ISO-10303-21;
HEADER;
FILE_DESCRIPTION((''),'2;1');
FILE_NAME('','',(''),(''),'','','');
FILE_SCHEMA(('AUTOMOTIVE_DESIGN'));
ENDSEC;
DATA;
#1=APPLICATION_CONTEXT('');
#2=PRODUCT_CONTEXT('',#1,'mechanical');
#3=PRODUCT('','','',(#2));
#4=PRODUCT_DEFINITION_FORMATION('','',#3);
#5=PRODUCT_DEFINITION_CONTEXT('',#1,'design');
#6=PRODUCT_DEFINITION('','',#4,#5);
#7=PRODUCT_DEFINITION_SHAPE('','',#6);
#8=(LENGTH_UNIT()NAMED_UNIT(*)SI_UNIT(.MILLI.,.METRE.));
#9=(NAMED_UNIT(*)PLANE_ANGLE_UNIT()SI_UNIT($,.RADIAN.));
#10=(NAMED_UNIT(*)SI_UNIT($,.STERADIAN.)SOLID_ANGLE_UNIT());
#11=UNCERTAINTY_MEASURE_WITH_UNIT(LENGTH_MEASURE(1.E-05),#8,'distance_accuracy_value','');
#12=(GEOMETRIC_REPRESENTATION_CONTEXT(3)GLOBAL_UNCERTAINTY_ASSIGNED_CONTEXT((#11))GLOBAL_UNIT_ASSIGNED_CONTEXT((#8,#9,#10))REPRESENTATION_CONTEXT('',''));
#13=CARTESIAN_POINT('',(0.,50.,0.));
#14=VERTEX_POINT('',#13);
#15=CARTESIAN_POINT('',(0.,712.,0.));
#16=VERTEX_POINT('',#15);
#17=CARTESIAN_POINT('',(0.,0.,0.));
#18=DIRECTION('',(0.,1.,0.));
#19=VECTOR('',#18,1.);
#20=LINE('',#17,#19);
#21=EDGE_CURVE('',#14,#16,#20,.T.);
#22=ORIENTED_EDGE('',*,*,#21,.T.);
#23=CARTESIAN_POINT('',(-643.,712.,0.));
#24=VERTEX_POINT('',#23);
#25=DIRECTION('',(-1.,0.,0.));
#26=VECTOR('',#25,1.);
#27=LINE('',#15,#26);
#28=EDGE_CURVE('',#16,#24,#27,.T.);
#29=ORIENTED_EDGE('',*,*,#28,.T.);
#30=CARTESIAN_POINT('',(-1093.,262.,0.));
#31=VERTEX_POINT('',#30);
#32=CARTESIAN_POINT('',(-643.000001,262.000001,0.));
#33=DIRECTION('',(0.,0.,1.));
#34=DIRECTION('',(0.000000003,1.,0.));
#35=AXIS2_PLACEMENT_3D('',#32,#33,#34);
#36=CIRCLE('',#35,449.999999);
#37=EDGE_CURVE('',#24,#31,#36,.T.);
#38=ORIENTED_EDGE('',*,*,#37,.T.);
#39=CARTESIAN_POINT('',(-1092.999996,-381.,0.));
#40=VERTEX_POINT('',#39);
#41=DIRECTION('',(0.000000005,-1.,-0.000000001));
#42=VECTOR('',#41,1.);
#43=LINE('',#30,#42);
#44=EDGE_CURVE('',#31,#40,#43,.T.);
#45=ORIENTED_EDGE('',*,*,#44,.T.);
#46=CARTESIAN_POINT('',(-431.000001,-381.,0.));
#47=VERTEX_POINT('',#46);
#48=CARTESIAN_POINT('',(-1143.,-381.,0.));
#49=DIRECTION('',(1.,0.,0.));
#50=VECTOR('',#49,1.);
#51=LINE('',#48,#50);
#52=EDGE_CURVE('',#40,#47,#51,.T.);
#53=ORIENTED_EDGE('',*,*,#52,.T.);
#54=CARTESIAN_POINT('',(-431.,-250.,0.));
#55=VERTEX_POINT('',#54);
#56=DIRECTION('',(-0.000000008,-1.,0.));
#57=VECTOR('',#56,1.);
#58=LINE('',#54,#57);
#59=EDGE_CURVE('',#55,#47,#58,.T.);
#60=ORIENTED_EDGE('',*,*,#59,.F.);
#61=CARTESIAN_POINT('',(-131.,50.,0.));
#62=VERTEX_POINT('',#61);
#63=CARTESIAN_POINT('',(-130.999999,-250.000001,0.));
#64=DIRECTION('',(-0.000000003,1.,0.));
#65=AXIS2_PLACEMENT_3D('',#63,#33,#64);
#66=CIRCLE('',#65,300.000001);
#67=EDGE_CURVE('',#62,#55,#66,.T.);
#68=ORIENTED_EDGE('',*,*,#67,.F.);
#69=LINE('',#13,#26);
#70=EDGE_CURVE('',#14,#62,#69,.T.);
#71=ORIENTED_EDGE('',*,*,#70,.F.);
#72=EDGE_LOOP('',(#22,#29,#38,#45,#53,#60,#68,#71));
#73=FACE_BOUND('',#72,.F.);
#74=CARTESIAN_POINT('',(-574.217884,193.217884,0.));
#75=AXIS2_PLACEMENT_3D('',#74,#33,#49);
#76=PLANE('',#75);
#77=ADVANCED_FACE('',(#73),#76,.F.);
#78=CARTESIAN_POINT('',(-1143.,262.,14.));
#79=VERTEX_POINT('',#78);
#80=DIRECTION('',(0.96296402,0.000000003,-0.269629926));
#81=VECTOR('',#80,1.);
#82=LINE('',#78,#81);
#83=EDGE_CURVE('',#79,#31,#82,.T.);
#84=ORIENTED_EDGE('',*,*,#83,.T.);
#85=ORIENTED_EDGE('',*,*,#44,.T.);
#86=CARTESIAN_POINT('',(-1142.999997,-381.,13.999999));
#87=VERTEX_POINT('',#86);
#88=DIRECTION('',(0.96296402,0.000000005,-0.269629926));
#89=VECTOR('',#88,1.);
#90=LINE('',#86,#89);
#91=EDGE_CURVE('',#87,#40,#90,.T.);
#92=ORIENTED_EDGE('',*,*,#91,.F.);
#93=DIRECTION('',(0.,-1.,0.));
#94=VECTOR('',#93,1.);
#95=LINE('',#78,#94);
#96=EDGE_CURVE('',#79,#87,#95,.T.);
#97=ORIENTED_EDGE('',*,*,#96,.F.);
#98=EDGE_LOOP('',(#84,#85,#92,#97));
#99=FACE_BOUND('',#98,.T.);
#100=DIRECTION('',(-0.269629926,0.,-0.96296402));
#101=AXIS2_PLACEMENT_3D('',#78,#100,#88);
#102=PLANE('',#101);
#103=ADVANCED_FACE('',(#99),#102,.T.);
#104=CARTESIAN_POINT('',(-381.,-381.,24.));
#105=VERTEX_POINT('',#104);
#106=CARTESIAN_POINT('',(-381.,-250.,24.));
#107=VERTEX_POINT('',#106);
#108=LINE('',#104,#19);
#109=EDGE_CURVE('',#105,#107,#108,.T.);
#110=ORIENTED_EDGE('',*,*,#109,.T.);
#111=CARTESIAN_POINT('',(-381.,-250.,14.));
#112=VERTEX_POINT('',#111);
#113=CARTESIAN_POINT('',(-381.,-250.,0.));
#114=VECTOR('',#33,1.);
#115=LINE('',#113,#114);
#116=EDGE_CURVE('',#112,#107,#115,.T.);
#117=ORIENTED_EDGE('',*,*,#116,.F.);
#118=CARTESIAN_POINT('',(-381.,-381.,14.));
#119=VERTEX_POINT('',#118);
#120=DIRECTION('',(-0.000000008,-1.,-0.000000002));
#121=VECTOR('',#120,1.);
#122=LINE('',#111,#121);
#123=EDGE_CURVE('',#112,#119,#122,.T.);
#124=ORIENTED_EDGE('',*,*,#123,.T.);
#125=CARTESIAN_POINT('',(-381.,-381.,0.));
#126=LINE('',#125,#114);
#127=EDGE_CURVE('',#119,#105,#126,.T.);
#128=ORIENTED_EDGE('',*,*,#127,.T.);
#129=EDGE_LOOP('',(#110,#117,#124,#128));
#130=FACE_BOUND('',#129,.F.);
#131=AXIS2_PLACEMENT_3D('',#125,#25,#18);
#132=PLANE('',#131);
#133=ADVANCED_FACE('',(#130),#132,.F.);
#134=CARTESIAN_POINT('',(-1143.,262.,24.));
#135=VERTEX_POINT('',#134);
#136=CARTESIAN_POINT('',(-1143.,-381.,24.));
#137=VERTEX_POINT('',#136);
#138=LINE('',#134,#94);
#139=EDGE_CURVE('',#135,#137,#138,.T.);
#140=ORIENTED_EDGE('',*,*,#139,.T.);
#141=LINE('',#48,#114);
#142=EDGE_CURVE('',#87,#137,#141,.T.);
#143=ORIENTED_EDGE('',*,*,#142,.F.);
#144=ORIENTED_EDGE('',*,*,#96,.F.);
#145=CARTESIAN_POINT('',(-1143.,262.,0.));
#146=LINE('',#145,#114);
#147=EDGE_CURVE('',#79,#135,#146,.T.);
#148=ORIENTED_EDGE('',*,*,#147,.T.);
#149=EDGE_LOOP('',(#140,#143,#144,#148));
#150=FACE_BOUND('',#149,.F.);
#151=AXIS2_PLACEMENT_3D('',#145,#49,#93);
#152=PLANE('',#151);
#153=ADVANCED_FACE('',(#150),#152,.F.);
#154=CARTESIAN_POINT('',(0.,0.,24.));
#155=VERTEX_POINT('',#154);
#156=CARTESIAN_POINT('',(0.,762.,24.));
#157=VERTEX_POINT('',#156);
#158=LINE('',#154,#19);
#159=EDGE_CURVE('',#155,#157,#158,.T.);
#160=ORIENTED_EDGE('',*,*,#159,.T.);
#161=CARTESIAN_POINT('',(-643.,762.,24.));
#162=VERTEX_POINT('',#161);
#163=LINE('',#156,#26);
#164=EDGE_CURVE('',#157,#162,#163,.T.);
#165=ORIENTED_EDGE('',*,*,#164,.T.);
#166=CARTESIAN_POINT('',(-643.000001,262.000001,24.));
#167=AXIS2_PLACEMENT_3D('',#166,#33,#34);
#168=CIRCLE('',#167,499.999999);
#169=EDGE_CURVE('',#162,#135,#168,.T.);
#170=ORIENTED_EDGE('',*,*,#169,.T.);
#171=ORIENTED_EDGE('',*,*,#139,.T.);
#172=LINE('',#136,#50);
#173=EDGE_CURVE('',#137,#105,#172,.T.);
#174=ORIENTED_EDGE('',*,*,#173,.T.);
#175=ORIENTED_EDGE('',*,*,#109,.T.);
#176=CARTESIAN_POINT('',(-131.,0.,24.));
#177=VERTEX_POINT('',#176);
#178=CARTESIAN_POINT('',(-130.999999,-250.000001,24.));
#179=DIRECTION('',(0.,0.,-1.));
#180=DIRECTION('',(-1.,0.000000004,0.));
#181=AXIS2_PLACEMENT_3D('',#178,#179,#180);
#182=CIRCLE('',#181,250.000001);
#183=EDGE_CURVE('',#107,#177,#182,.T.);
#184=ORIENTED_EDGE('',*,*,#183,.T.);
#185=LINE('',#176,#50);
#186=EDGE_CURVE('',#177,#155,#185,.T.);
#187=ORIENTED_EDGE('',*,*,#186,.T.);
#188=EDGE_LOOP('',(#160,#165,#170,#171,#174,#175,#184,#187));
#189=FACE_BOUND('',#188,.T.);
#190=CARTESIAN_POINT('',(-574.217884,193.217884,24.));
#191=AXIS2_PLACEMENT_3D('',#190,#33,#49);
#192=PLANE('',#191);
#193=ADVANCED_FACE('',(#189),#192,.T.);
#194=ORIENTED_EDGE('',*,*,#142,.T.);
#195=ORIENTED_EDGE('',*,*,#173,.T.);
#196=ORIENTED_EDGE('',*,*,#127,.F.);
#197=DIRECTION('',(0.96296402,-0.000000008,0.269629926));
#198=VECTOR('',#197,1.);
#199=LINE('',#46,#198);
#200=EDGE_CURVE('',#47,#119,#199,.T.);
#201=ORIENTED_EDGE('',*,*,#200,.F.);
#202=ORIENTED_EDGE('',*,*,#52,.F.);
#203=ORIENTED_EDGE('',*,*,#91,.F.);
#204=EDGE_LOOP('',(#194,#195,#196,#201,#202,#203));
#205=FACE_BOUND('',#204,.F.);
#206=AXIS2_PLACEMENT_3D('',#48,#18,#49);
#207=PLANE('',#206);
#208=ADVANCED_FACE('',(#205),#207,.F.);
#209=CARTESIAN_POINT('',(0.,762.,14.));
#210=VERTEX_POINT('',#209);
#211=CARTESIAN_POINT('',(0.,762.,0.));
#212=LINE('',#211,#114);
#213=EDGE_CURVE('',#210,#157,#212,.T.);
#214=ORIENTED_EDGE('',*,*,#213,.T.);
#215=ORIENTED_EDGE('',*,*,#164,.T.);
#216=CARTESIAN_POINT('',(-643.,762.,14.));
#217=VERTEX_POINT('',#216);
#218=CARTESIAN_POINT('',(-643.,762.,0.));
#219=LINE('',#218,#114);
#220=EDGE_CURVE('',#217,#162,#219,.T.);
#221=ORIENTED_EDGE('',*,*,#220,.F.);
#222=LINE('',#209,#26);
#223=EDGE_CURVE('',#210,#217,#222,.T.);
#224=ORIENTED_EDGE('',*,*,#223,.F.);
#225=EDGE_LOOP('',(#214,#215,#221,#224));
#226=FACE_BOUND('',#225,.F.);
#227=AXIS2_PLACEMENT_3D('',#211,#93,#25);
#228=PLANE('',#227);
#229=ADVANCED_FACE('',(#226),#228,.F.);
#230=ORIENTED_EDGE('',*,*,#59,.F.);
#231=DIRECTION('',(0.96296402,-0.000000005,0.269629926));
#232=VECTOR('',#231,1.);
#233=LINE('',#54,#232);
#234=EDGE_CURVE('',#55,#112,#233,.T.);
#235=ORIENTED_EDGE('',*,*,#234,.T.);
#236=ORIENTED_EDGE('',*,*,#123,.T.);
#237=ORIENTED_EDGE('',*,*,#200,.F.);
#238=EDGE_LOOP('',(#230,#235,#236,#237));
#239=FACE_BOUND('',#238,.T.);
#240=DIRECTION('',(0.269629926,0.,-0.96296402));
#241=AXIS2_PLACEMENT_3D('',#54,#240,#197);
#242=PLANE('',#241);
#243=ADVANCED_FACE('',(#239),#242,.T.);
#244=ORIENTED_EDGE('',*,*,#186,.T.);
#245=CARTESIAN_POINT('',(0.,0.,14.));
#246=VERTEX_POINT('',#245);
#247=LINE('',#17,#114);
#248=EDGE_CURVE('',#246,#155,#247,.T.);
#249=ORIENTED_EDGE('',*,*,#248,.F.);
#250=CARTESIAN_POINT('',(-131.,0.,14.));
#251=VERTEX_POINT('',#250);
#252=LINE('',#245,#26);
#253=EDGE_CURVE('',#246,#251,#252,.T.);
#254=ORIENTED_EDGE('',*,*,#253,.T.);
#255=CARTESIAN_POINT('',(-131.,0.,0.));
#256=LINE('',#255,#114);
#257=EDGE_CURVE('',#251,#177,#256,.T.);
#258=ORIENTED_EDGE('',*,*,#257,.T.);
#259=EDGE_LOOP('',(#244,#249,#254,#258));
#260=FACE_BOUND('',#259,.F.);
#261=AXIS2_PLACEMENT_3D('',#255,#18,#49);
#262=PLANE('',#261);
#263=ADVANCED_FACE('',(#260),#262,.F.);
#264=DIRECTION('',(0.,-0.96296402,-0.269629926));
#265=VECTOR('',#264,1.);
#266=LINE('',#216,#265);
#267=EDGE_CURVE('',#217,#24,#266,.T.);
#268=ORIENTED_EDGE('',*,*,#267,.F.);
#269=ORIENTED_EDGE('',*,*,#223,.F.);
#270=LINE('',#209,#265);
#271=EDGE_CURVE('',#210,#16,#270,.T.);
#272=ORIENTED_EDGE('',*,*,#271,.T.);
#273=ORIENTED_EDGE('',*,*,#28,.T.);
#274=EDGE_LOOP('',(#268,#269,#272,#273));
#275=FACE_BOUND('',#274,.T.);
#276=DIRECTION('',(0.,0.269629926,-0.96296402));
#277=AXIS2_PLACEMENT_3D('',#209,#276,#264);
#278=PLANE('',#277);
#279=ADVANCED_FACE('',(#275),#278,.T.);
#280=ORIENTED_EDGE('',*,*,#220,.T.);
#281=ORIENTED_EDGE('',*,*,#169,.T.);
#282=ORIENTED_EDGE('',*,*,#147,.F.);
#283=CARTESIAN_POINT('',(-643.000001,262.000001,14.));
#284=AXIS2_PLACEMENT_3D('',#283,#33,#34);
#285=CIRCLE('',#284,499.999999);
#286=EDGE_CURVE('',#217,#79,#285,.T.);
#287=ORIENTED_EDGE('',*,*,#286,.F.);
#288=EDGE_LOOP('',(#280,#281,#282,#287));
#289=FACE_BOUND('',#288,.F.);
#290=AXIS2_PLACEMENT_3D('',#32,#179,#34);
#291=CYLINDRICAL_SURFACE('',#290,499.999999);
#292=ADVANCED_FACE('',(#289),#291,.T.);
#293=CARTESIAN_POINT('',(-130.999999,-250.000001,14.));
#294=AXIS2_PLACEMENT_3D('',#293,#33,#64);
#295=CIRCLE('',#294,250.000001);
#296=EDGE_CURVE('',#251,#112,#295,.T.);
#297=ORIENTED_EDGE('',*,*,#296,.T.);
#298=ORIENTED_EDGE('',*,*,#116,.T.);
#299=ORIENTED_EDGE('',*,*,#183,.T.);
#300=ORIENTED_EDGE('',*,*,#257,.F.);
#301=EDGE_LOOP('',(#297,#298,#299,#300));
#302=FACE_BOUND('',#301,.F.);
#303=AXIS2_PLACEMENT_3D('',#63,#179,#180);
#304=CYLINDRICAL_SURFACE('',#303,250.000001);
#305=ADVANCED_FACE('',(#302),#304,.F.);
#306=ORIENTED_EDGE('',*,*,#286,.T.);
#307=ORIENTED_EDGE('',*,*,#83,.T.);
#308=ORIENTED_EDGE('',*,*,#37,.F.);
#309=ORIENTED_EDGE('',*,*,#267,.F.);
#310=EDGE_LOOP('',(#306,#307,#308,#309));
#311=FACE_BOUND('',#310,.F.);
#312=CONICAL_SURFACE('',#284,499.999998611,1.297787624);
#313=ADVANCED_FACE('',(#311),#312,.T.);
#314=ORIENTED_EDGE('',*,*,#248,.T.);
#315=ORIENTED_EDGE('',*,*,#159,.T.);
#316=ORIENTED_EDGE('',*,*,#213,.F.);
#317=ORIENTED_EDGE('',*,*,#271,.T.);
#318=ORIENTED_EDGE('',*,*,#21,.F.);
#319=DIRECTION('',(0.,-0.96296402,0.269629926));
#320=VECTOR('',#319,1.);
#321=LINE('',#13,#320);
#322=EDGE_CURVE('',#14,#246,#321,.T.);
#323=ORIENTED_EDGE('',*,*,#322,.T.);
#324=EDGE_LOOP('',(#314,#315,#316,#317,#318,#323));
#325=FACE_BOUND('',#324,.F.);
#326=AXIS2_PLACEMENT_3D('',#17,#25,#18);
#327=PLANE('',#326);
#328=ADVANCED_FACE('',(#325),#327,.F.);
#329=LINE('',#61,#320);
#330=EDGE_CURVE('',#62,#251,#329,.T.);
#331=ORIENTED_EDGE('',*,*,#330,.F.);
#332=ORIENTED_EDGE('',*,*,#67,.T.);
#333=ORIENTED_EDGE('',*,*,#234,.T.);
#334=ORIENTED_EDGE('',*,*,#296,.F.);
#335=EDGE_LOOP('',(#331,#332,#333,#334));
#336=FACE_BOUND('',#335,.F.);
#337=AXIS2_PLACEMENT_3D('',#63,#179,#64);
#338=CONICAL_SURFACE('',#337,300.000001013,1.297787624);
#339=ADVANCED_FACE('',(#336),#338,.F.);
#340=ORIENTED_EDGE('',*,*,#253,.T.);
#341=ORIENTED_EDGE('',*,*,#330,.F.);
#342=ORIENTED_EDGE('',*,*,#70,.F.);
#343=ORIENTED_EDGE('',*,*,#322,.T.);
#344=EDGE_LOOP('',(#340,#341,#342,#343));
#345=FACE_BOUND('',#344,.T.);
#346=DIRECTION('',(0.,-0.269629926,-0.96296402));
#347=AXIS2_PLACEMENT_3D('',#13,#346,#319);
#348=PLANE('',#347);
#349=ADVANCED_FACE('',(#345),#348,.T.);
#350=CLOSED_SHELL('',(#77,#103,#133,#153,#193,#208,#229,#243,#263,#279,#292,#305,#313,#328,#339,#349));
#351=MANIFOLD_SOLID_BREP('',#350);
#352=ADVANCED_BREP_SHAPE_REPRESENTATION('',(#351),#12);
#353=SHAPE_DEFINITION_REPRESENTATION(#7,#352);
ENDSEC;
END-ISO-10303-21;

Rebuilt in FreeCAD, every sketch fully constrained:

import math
import FreeCAD as App
import Part
import Sketcher

V = App.Vector
Q = App.Units.Quantity


def add_polygon(sketch, points):
    """Adds a closed chain of lines whose ends are joined by coincident constraints."""
    first, n = sketch.GeometryCount, len(points)
    for a, b in zip(points, points[1:] + points[:1]):
        sketch.addGeometry(Part.LineSegment(App.Vector(*a, 0), App.Vector(*b, 0)), False)
    for i in range(n):
        sketch.addConstraint(Sketcher.Constraint("Coincident", first + i, 2, first + (i + 1) % n, 1))

doc = App.newDocument("Part")
body = doc.addObject("PartDesign::Body", "Body")

sketch1 = doc.addObject("Sketcher::SketchObject", "Sketch")
body.addObject(sketch1)
sketch1.AttachmentSupport = (doc.XY_Plane, [""])
sketch1.MapMode = "FlatFace"
sketch1.addGeometry([
    Part.LineSegment(V(-131, 0, 0), V(0, 0, 0)),
    Part.LineSegment(V(0, 0, 0), V(0, 762, 0)),
    Part.LineSegment(V(0, 762, 0), V(-643, 762, 0)),
    Part.ArcOfCircle(Part.Circle(V(-643, 262, 0), V(0, 0, 1), 500), math.radians(90), math.radians(180)),
    Part.LineSegment(V(-1143, 262, 0), V(-1143, -381, 0)),
    Part.LineSegment(V(-1143, -381, 0), V(-381, -381, 0)),
    Part.LineSegment(V(-381, -381, 0), V(-381, -250, 0)),
    Part.ArcOfCircle(Part.Circle(V(-131, -250, 0), V(0, 0, 1), 250), math.radians(90), math.radians(180)),
], False)
sketch1.addConstraint([
    Sketcher.Constraint("Coincident", 0, 2, 1, 1),
    Sketcher.Constraint("Coincident", 1, 2, 2, 1),
    Sketcher.Constraint("Tangent", 2, 2, 3, 1),
    Sketcher.Constraint("Tangent", 3, 2, 4, 1),
    Sketcher.Constraint("Coincident", 4, 2, 5, 1),
    Sketcher.Constraint("Coincident", 5, 2, 6, 1),
    Sketcher.Constraint("Tangent", 6, 2, 7, 2),
    Sketcher.Constraint("Tangent", 7, 1, 0, 1),
    Sketcher.Constraint("Horizontal", 0),
    Sketcher.Constraint("Vertical", 1),
    Sketcher.Constraint("Horizontal", 2),
    Sketcher.Constraint("Vertical", 4),
    Sketcher.Constraint("Horizontal", 5),
    Sketcher.Constraint("Vertical", 6),
    Sketcher.Constraint("Coincident", 0, 2, -1, 1),
    Sketcher.Constraint("Equal", 5, 1),
    Sketcher.Constraint("Equal", 2, 4),
    Sketcher.Constraint("Radius", 3, Q("499.999999 mm")),
    Sketcher.Constraint("Radius", 7, Q("250.000001 mm")),
    Sketcher.Constraint("DistanceX", 0, 1, 0, 2, Q("131 mm")),
    Sketcher.Constraint("DistanceX", 2, 2, 2, 1, Q("643 mm")),
])
pad1 = doc.addObject("PartDesign::Pad", "Pad")
body.addObject(pad1)
pad1.Profile = sketch1
pad1.Length = 24

sketch2 = doc.addObject("Sketcher::SketchObject", "Sketch001")
body.addObject(sketch2)
sketch2.AttachmentSupport = (doc.YZ_Plane, [""])
sketch2.MapMode = "FlatFace"
add_polygon(sketch2, [(0, 0), (50, 0), (0, 14)])
sketch2.addConstraint([
    Sketcher.Constraint("Horizontal", 0),
    Sketcher.Constraint("Vertical", 2),
    Sketcher.Constraint("Coincident", 2, 2, -1, 1),
    Sketcher.Constraint("DistanceX", 0, 1, 0, 2, Q("50 mm")),
    Sketcher.Constraint("DistanceY", 2, 2, 2, 1, Q("14 mm")),
])

sketch3 = doc.addObject("Sketcher::SketchObject", "Sketch002")
body.addObject(sketch3)
sketch3.AttachmentSupport = (doc.XY_Plane, [""])
sketch3.MapMode = "FlatFace"
sketch3.addGeometry([
    Part.LineSegment(V(0, 0, 0), V(-131, 0, 0)),
    Part.ArcOfCircle(Part.Circle(V(-131, -250, 0), V(0, 0, 1), 250), math.radians(90), math.radians(180)),
    Part.LineSegment(V(-381, -250, 0), V(-381, -381, 0)),
], False)
sketch3.addConstraint([
    Sketcher.Constraint("Tangent", 0, 2, 1, 1),
    Sketcher.Constraint("Tangent", 1, 2, 2, 1),
    Sketcher.Constraint("Horizontal", 0),
    Sketcher.Constraint("Vertical", 2),
    Sketcher.Constraint("Coincident", 0, 1, -1, 1),
    Sketcher.Constraint("Equal", 0, 2),
    Sketcher.Constraint("Radius", 1, Q("250.000001 mm")),
    Sketcher.Constraint("DistanceX", 0, 2, 0, 1, Q("131 mm")),
])
doc.recompute()

subtractivepipe = doc.addObject("PartDesign::SubtractivePipe", "SubtractivePipe")
body.addObject(subtractivepipe)
subtractivepipe.Profile = sketch2
subtractivepipe.Spine = (sketch3, ["Edge1", "Edge2", "Edge3"])

sketch4 = doc.addObject("Sketcher::SketchObject", "Sketch003")
body.addObject(sketch4)
sketch4.AttachmentSupport = (doc.YZ_Plane, [""])
sketch4.MapMode = "FlatFace"
add_polygon(sketch4, [(762, 0), (762, 14), (712, 0)])
sketch4.addConstraint([
    Sketcher.Constraint("Vertical", 0),
    Sketcher.Constraint("Horizontal", 2),
    Sketcher.Constraint("PointOnObject", 1, 2, -1),
    Sketcher.Constraint("DistanceX", 2, 1, 2, 2, Q("50 mm")),
    Sketcher.Constraint("DistanceY", 0, 1, 0, 2, Q("14 mm")),
    Sketcher.Constraint("DistanceX", -1, 1, 0, 2, Q("762 mm")),
])

sketch5 = doc.addObject("Sketcher::SketchObject", "Sketch004")
body.addObject(sketch5)
sketch5.AttachmentSupport = (doc.XY_Plane, [""])
sketch5.MapMode = "FlatFace"
sketch5.addGeometry([
    Part.LineSegment(V(0, 762, 0), V(-643, 762, 0)),
    Part.ArcOfCircle(Part.Circle(V(-643, 262, 0), V(0, 0, 1), 500), math.radians(90), math.radians(180)),
    Part.LineSegment(V(-1143, 262, 0), V(-1143, -381, 0)),
], False)
sketch5.addConstraint([
    Sketcher.Constraint("Tangent", 0, 2, 1, 1),
    Sketcher.Constraint("Tangent", 1, 2, 2, 1),
    Sketcher.Constraint("Horizontal", 0),
    Sketcher.Constraint("Vertical", 2),
    Sketcher.Constraint("PointOnObject", 0, 1, -2),
    Sketcher.Constraint("Equal", 0, 2),
    Sketcher.Constraint("Radius", 1, Q("499.999999 mm")),
    Sketcher.Constraint("DistanceX", 0, 2, 0, 1, Q("643 mm")),
    Sketcher.Constraint("DistanceY", -1, 1, 1, 3, Q("262.000001 mm")),
])
doc.recompute()

subtractivepipe2 = doc.addObject("PartDesign::SubtractivePipe", "SubtractivePipe001")
body.addObject(subtractivepipe2)
subtractivepipe2.Profile = sketch4
subtractivepipe2.Spine = (sketch5, ["Edge1", "Edge2", "Edge3"])

doc.recompute()
